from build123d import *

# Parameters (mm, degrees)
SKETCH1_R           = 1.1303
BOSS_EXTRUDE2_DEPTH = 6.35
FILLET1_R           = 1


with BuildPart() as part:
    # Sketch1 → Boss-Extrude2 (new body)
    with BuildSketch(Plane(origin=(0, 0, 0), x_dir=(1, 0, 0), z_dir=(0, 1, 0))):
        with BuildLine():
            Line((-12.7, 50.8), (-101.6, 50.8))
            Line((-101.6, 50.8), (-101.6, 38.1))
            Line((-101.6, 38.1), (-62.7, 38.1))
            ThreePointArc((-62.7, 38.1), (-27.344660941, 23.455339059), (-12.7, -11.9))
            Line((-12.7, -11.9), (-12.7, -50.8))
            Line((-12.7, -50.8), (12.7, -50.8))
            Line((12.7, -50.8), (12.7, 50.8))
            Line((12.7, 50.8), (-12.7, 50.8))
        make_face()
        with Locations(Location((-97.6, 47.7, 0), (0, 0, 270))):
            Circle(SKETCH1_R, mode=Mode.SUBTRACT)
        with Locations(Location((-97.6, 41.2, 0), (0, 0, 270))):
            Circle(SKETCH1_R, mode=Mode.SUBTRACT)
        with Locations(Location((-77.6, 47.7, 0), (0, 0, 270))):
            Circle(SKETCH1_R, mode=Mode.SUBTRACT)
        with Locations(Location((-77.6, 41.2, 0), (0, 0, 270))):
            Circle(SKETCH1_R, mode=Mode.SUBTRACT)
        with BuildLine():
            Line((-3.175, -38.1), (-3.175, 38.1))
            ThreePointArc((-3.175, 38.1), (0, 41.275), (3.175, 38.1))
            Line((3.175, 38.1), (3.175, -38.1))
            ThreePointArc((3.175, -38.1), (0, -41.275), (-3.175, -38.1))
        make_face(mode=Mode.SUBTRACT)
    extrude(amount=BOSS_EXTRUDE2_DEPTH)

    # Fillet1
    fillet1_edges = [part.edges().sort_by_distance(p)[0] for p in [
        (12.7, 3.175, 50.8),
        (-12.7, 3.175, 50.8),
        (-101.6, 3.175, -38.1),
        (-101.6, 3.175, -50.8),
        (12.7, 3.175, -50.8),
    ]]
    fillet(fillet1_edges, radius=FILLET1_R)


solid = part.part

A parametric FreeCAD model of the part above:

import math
import FreeCAD as App
import Part
import Sketcher
Q = App.Units.Quantity


def edges_at(feature, points):
    """Names of the edges that pass closest to the given points."""
    edges = feature.Shape.Edges
    near = lambda p: min(range(len(edges)), key=lambda i: edges[i].distToShape(Part.Vertex(*p))[0])
    return sorted({f"Edge{near(p) + 1}" for p in points})

doc = App.newDocument("Part")
body = doc.addObject("PartDesign::Body", "Body")

sketch1 = body.newObject("Sketcher::SketchObject", "Sketch")
sketch1.AttachmentSupport = (doc.getObject("XZ_Plane"), [""])
sketch1.MapMode = "FlatFace"
sketch1.addGeometry(Part.LineSegment(App.Vector(-101.6, -50.8, 0), App.Vector(-101.6, -38.1, 0)), False)
sketch1.addGeometry(Part.LineSegment(App.Vector(-101.6, -38.1, 0), App.Vector(-62.7, -38.1, 0)), False)
sketch1.addGeometry(Part.ArcOfCircle(Part.Circle(App.Vector(-62.7, 11.9, 0), App.Vector(0, 0, 1), 50), math.radians(-90), math.radians(0)), False)
sketch1.addGeometry(Part.LineSegment(App.Vector(-12.7, 11.9, 0), App.Vector(-12.7, 50.8, 0)), False)
sketch1.addGeometry(Part.LineSegment(App.Vector(-12.7, 50.8, 0), App.Vector(12.7, 50.8, 0)), False)
sketch1.addGeometry(Part.LineSegment(App.Vector(12.7, 50.8, 0), App.Vector(12.7, -50.8, 0)), False)
sketch1.addGeometry(Part.LineSegment(App.Vector(12.7, -50.8, 0), App.Vector(-101.6, -50.8, 0)), False)
sketch1.addGeometry(Part.ArcOfCircle(Part.Circle(App.Vector(0, 38.1, 0), App.Vector(0, 0, 1), 3.2), math.radians(0), math.radians(180)), False)
sketch1.addGeometry(Part.LineSegment(App.Vector(-3.2, 38.1, 0), App.Vector(-3.2, -38.1, 0)), False)
sketch1.addGeometry(Part.ArcOfCircle(Part.Circle(App.Vector(0, -38.1, 0), App.Vector(0, 0, 1), 3.2), math.radians(180), math.radians(360)), False)
sketch1.addGeometry(Part.LineSegment(App.Vector(3.2, -38.1, 0), App.Vector(3.2, 38.1, 0)), False)
sketch1.addGeometry(Part.Circle(App.Vector(-97.6, -41.2, 0), App.Vector(0, 0, 1), 1.1), False)
sketch1.addGeometry(Part.Circle(App.Vector(-97.6, -47.7, 0), App.Vector(0, 0, 1), 1.1), False)
sketch1.addGeometry(Part.Circle(App.Vector(-77.6, -41.2, 0), App.Vector(0, 0, 1), 1.1), False)
sketch1.addGeometry(Part.Circle(App.Vector(-77.6, -47.7, 0), App.Vector(0, 0, 1), 1.1), False)
sketch1.addConstraint(Sketcher.Constraint("Coincident", 0, 2, 1, 1))
sketch1.addConstraint(Sketcher.Constraint("Tangent", 1, 2, 2, 1))
sketch1.addConstraint(Sketcher.Constraint("Tangent", 2, 2, 3, 1))
sketch1.addConstraint(Sketcher.Constraint("Coincident", 3, 2, 4, 1))
sketch1.addConstraint(Sketcher.Constraint("Coincident", 4, 2, 5, 1))
sketch1.addConstraint(Sketcher.Constraint("Coincident", 5, 2, 6, 1))
sketch1.addConstraint(Sketcher.Constraint("Coincident", 6, 2, 0, 1))
sketch1.addConstraint(Sketcher.Constraint("Tangent", 7, 2, 8, 1))
sketch1.addConstraint(Sketcher.Constraint("Tangent", 8, 2, 9, 1))
sketch1.addConstraint(Sketcher.Constraint("Tangent", 9, 2, 10, 1))
sketch1.addConstraint(Sketcher.Constraint("Tangent", 10, 2, 7, 1))
sketch1.addConstraint(Sketcher.Constraint("Vertical", 0))
sketch1.addConstraint(Sketcher.Constraint("Horizontal", 1))
sketch1.addConstraint(Sketcher.Constraint("Vertical", 3))
sketch1.addConstraint(Sketcher.Constraint("Horizontal", 4))
sketch1.addConstraint(Sketcher.Constraint("Vertical", 5))
sketch1.addConstraint(Sketcher.Constraint("Horizontal", 6))
sketch1.addConstraint(Sketcher.Constraint("Vertical", 8))
sketch1.addConstraint(Sketcher.Constraint("Vertical", 10))
sketch1.addConstraint(Sketcher.Constraint("Equal", 11, 12))
sketch1.addConstraint(Sketcher.Constraint("Equal", 12, 13))
sketch1.addConstraint(Sketcher.Constraint("Equal", 13, 14))
sketch1.addConstraint(Sketcher.Constraint("Symmetric", 7, 3, 9, 3, -1, 1))
sketch1.addConstraint(Sketcher.Constraint("Symmetric", 3, 2, 5, 2, -1, 1))
sketch1.addConstraint(Sketcher.Constraint("Horizontal", 11, 3, 13, 3))
sketch1.addConstraint(Sketcher.Constraint("Horizontal", 12, 3, 14, 3))
sketch1.addConstraint(Sketcher.Constraint("Horizontal", 9, 3, 0, 2))
sketch1.addConstraint(Sketcher.Constraint("Vertical", 11, 3, 12, 3))
sketch1.addConstraint(Sketcher.Constraint("Vertical", 13, 3, 14, 3))
sketch1.addConstraint(Sketcher.Constraint("Equal", 1, 3))
sketch1.addConstraint(Sketcher.Constraint("DistanceX", 4, 1, 4, 2, Q("1 in")))
sketch1.addConstraint(Sketcher.Constraint("DistanceY", 5, 2, 5, 1, Q("4 in")))
sketch1.addConstraint(Sketcher.Constraint("DistanceY", 8, 2, 8, 1, Q("3 in")))
sketch1.addConstraint(Sketcher.Constraint("Diameter", 11, Q("0.089 in")))
sketch1.addConstraint(Sketcher.Constraint("Radius", 7, Q("0.125 in")))
sketch1.addConstraint(Sketcher.Constraint("Radius", 2, 50.0))
sketch1.addConstraint(Sketcher.Constraint("DistanceX", 11, 3, -1, 1, 97.6))
sketch1.addConstraint(Sketcher.Constraint("DistanceY", 11, 3, -1, 1, 41.2))
sketch1.addConstraint(Sketcher.Constraint("DistanceY", 12, 3, -1, 1, 47.7))
sketch1.addConstraint(Sketcher.Constraint("DistanceX", 13, 3, -1, 1, 77.6))
pad1 = body.newObject("PartDesign::Pad", "Pad")
pad1.Profile = sketch1
pad1.Length = Q("0.25 in")
pad1.Reversed = True
doc.recompute()

fillet = body.newObject("PartDesign::Fillet", "Fillet")
fillet.Base = (pad1, edges_at(pad1, [
    (12.7, 3.175, 50.8),
    (-12.7, 3.175, 50.8),
    (-101.6, 3.175, -38.1),
    (-101.6, 3.175, -50.8),
    (12.7, 3.175, -50.8),
]))
fillet.Radius = 1

doc.recompute()
